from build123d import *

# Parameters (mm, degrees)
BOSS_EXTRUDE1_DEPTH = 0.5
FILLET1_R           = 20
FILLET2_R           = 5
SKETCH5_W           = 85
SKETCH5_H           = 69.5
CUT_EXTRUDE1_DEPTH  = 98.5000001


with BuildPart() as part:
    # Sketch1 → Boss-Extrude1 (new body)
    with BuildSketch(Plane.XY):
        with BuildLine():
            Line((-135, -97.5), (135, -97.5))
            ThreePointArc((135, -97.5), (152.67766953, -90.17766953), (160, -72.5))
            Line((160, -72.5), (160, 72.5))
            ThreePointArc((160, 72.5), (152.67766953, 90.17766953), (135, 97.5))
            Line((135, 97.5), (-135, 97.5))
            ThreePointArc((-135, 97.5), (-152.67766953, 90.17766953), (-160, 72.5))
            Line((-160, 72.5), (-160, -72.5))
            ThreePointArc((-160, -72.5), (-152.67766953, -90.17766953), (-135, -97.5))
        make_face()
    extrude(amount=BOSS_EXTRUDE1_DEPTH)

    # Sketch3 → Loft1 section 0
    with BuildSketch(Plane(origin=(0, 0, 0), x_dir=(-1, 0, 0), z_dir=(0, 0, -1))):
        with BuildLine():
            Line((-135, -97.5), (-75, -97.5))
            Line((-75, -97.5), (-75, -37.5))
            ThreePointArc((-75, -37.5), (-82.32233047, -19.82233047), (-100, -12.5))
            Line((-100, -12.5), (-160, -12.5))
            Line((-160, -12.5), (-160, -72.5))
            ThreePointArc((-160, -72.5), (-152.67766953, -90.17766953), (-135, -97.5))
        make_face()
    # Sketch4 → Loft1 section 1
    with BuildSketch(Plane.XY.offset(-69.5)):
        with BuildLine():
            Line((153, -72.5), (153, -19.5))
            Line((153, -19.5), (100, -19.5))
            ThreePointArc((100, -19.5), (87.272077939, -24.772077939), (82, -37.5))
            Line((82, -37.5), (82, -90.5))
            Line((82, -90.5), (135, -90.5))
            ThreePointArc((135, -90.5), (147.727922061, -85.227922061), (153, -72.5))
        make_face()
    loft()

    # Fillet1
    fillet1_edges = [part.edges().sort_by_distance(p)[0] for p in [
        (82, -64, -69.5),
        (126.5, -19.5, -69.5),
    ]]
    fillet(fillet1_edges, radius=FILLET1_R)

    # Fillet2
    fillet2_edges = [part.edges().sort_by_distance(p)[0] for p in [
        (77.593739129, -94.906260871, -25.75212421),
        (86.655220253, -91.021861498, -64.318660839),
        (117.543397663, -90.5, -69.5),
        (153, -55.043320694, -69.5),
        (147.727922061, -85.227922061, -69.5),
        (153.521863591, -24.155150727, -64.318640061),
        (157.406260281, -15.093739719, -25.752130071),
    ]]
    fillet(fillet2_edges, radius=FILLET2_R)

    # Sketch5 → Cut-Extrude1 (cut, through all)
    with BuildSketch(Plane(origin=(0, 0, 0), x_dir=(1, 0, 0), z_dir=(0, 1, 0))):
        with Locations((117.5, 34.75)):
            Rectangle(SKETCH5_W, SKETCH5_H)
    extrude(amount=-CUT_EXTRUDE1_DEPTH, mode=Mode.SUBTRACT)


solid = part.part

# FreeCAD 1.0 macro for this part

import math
import FreeCAD as App
import Part
import Sketcher

V = App.Vector
Q = App.Units.Quantity


def edges_at(feature, points):
    """Names of the edges that pass closest to the given points."""
    edges = feature.Shape.Edges
    near = lambda p: min(range(len(edges)), key=lambda i: edges[i].distToShape(Part.Vertex(*p))[0])
    return sorted({f"Edge{near(p) + 1}" for p in points})

doc = App.newDocument("Part")
params = doc.addObject("Spreadsheet::Sheet", "Params")
for row, (alias, value) in enumerate([
    ("sketch1_radius", "25 mm"),
    ("sketch1_width", "270 mm"),
    ("sketch1_height", "145 mm"),
    ("pad1_length", "0.5 mm"),
    ("sketch2_radius", "25 mm"),
    ("sketch2_width", "60 mm"),
    ("sketch3_radius", "18 mm"),
    ("sketch3_width", "53 mm"),
    ("fillet_radius", "20 mm"),
    ("fillet2_radius", "5 mm"),
    ("sketch4_width", "85 mm"),
    ("sketch4_height", "69.5 mm"),
], start=1):
    params.set(f"A{row}", alias)
    params.set(f"B{row}", "=" + value)
    params.setAlias(f"B{row}", alias)

body = doc.addObject("PartDesign::Body", "Body")

sketch1 = doc.addObject("Sketcher::SketchObject", "Sketch")
body.addObject(sketch1)
sketch1.AttachmentSupport = (doc.XY_Plane, [""])
sketch1.MapMode = "FlatFace"
sketch1.addGeometry([
    Part.LineSegment(V(-135, -98, 0), V(135, -98, 0)),
    Part.ArcOfCircle(Part.Circle(V(135, -73, 0), V(0, 0, 1), 25), math.radians(-90), math.radians(0)),
    Part.LineSegment(V(160, -72, 0), V(160, 72, 0)),
    Part.ArcOfCircle(Part.Circle(V(135, 73, 0), V(0, 0, 1), 25), math.radians(0), math.radians(90)),
    Part.LineSegment(V(135, 98, 0), V(-135, 98, 0)),
    Part.ArcOfCircle(Part.Circle(V(-135, 73, 0), V(0, 0, 1), 25), math.radians(90), math.radians(180)),
    Part.LineSegment(V(-160, 72, 0), V(-160, -72, 0)),
    Part.ArcOfCircle(Part.Circle(V(-135, -73, 0), V(0, 0, 1), 25), math.radians(180), math.radians(270)),
], False)
sketch1.addConstraint([
    Sketcher.Constraint("Tangent", 0, 2, 1, 1),
    Sketcher.Constraint("Tangent", 1, 2, 2, 1),
    Sketcher.Constraint("Tangent", 2, 2, 3, 1),
    Sketcher.Constraint("Tangent", 3, 2, 4, 1),
    Sketcher.Constraint("Tangent", 4, 2, 5, 1),
    Sketcher.Constraint("Tangent", 5, 2, 6, 1),
    Sketcher.Constraint("Tangent", 6, 2, 7, 1),
    Sketcher.Constraint("Tangent", 7, 2, 0, 1),
    Sketcher.Constraint("Horizontal", 0),
    Sketcher.Constraint("Vertical", 2),
    Sketcher.Constraint("Horizontal", 4),
    Sketcher.Constraint("Vertical", 6),
    Sketcher.Constraint("Equal", 1, 3),
    Sketcher.Constraint("Equal", 3, 5),
    Sketcher.Constraint("Equal", 5, 7),
    Sketcher.Constraint("Symmetric", 1, 3, 5, 3, -1, 1),
    Sketcher.Constraint("Radius", 1, Q("25 mm")),
    Sketcher.Constraint("DistanceX", 0, 1, 0, 2, Q("270 mm")),
    Sketcher.Constraint("DistanceY", 2, 1, 2, 2, Q("145 mm")),
])
sketch1.setExpression("Constraints[16]", "Params.sketch1_radius")
sketch1.setExpression("Constraints[17]", "Params.sketch1_width")
sketch1.setExpression("Constraints[18]", "Params.sketch1_height")
pad1 = doc.addObject("PartDesign::Pad", "Pad")
body.addObject(pad1)
pad1.Profile = sketch1
pad1.setExpression("Length", "Params.pad1_length")

sketch2 = doc.addObject("Sketcher::SketchObject", "Sketch001")
body.addObject(sketch2)
sketch2.AttachmentSupport = (doc.XY_Plane, [""])
sketch2.MapMode = "FlatFace"
sketch2.addGeometry([
    Part.LineSegment(V(135, -98, 0), V(75, -98, 0)),
    Part.LineSegment(V(75, -98, 0), V(75, -38, 0)),
    Part.ArcOfCircle(Part.Circle(V(100, -37, 0), V(0, 0, 1), 25), math.radians(90), math.radians(180)),
    Part.LineSegment(V(100, -12, 0), V(160, -12, 0)),
    Part.LineSegment(V(160, -12, 0), V(160, -72, 0)),
    Part.ArcOfCircle(Part.Circle(V(135, -73, 0), V(0, 0, 1), 25), math.radians(-90), math.radians(0)),
], False)
sketch2.addConstraint([
    Sketcher.Constraint("Coincident", 0, 2, 1, 1),
    Sketcher.Constraint("Tangent", 1, 2, 2, 2),
    Sketcher.Constraint("Tangent", 2, 1, 3, 1),
    Sketcher.Constraint("Coincident", 3, 2, 4, 1),
    Sketcher.Constraint("Tangent", 4, 2, 5, 2),
    Sketcher.Constraint("Tangent", 5, 1, 0, 1),
    Sketcher.Constraint("Horizontal", 0),
    Sketcher.Constraint("Vertical", 1),
    Sketcher.Constraint("Horizontal", 3),
    Sketcher.Constraint("Vertical", 4),
    Sketcher.Constraint("Equal", 2, 5),
    Sketcher.Constraint("Equal", 3, 1),
    Sketcher.Constraint("Radius", 2, Q("25 mm")),
    Sketcher.Constraint("DistanceX", 0, 2, 0, 1, Q("60 mm")),
    Sketcher.Constraint("DistanceX", -1, 1, 2, 3, Q("100 mm")),
    Sketcher.Constraint("DistanceY", 2, 3, -1, 1, Q("37.5 mm")),
])
sketch2.setExpression("Constraints[12]", "Params.sketch2_radius")
sketch2.setExpression("Constraints[13]", "Params.sketch2_width")

sketch3 = doc.addObject("Sketcher::SketchObject", "Sketch002")
body.addObject(sketch3)
sketch3.AttachmentSupport = (doc.XY_Plane, [""])
sketch3.MapMode = "FlatFace"
sketch3.AttachmentOffset = App.Placement(V(0, 0, -69.5), App.Rotation())
sketch3.addGeometry([
    Part.LineSegment(V(153, -72, 0), V(153, -20, 0)),
    Part.LineSegment(V(153, -20, 0), V(100, -20, 0)),
    Part.ArcOfCircle(Part.Circle(V(100, -38, 0), V(0, 0, 1), 18), math.radians(90), math.radians(180)),
    Part.LineSegment(V(82, -38, 0), V(82, -90, 0)),
    Part.LineSegment(V(82, -90, 0), V(135, -90, 0)),
    Part.ArcOfCircle(Part.Circle(V(135, -72, 0), V(0, 0, 1), 18), math.radians(-90), math.radians(0)),
], False)
sketch3.addConstraint([
    Sketcher.Constraint("Coincident", 0, 2, 1, 1),
    Sketcher.Constraint("Tangent", 1, 2, 2, 1),
    Sketcher.Constraint("Tangent", 2, 2, 3, 1),
    Sketcher.Constraint("Coincident", 3, 2, 4, 1),
    Sketcher.Constraint("Tangent", 4, 2, 5, 1),
    Sketcher.Constraint("Tangent", 5, 2, 0, 1),
    Sketcher.Constraint("Vertical", 0),
    Sketcher.Constraint("Horizontal", 1),
    Sketcher.Constraint("Vertical", 3),
    Sketcher.Constraint("Horizontal", 4),
    Sketcher.Constraint("Equal", 2, 5),
    Sketcher.Constraint("Equal", 4, 0),
    Sketcher.Constraint("Radius", 2, Q("18 mm")),
    Sketcher.Constraint("DistanceX", 1, 2, 1, 1, Q("53 mm")),
    Sketcher.Constraint("DistanceX", -1, 1, 2, 3, Q("100 mm")),
    Sketcher.Constraint("DistanceY", 2, 3, -1, 1, Q("37.5 mm")),
])
sketch3.setExpression("Constraints[12]", "Params.sketch3_radius")
sketch3.setExpression("Constraints[13]", "Params.sketch3_width")

additiveloft = doc.addObject("PartDesign::AdditiveLoft", "AdditiveLoft")
body.addObject(additiveloft)
additiveloft.Profile = sketch2
additiveloft.Sections = [sketch3]
doc.recompute()

fillet = doc.addObject("PartDesign::Fillet", "Fillet")
body.addObject(fillet)
fillet.Base = (additiveloft, edges_at(additiveloft, [(82, -64, -69.5), (126.5, -19.5, -69.5)]))
fillet.setExpression("Radius", "Params.fillet_radius")
doc.recompute()

fillet2 = doc.addObject("PartDesign::Fillet", "Fillet001")
body.addObject(fillet2)
fillet2.Base = (fillet, edges_at(fillet, [
    (77.594, -94.906, -25.752),
    (86.655, -91.022, -64.319),
    (117.543, -90.5, -69.5),
    (153, -55.043, -69.5),
    (147.728, -85.228, -69.5),
    (153.522, -24.155, -64.319),
    (157.406, -15.094, -25.752),
]))
fillet2.setExpression("Radius", "Params.fillet2_radius")

sketch4 = doc.addObject("Sketcher::SketchObject", "Sketch003")
body.addObject(sketch4)
sketch4.AttachmentSupport = (doc.XZ_Plane, [""])
sketch4.MapMode = "FlatFace"
sketch4.addGeometry([
    Part.LineSegment(V(75, -70, 0), V(75, 0, 0)),
    Part.LineSegment(V(75, 0, 0), V(160, 0, 0)),
    Part.LineSegment(V(160, 0, 0), V(160, -70, 0)),
    Part.LineSegment(V(160, -70, 0), V(75, -70, 0)),
], False)
sketch4.addConstraint([
    Sketcher.Constraint("Coincident", 0, 2, 1, 1),
    Sketcher.Constraint("Coincident", 1, 2, 2, 1),
    Sketcher.Constraint("Coincident", 2, 2, 3, 1),
    Sketcher.Constraint("Coincident", 3, 2, 0, 1),
    Sketcher.Constraint("Vertical", 0),
    Sketcher.Constraint("Horizontal", 1),
    Sketcher.Constraint("Vertical", 2),
    Sketcher.Constraint("Horizontal", 3),
    Sketcher.Constraint("PointOnObject", 0, 2, -1),
    Sketcher.Constraint("DistanceX", 1, 1, 1, 2, Q("85 mm")),
    Sketcher.Constraint("DistanceY", 0, 1, 0, 2, Q("69.5 mm")),
    Sketcher.Constraint("DistanceX", -1, 1, 0, 2, Q("75 mm")),
])
sketch4.setExpression("Constraints[9]", "Params.sketch4_width")
sketch4.setExpression("Constraints[10]", "Params.sketch4_height")
pocket1 = doc.addObject("PartDesign::Pocket", "Pocket")
body.addObject(pocket1)
pocket1.Profile = sketch4
pocket1.Type = "ThroughAll"
pocket1.Reversed = True

doc.recompute()
